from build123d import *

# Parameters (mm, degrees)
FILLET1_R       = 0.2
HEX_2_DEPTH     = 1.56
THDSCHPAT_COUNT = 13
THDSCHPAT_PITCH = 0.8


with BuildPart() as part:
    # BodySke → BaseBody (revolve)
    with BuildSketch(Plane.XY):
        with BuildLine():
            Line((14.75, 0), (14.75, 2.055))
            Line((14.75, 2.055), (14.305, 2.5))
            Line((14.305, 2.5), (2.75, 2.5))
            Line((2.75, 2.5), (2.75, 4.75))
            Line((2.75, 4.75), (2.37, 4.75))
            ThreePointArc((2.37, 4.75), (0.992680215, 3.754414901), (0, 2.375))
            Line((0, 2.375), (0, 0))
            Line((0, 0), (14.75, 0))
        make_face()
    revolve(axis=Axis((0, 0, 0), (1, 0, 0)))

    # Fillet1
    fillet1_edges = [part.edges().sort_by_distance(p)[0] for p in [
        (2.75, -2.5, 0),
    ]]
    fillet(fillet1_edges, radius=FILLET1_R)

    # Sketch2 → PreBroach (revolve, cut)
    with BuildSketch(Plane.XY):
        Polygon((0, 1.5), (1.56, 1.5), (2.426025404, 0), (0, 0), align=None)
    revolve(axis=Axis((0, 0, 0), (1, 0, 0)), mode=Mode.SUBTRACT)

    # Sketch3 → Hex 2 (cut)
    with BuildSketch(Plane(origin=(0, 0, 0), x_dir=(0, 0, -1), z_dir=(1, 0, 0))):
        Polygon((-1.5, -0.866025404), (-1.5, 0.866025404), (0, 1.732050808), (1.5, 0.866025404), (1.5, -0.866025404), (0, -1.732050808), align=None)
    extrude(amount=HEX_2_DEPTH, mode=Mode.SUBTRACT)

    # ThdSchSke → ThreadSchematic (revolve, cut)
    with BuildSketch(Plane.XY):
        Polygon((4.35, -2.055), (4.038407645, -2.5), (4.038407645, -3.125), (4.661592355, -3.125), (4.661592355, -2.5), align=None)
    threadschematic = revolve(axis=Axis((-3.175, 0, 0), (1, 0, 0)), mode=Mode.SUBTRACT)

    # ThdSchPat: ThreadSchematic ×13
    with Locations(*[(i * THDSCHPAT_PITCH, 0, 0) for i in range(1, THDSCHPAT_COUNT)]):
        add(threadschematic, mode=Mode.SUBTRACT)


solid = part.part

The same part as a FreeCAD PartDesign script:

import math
import FreeCAD as App
import Part
import Sketcher
from FreeCAD import Vector
Q = App.Units.Quantity


def edges_at(feature, points):
    """Names of the edges that pass closest to the given points."""
    edges = feature.Shape.Edges
    near = lambda p: min(range(len(edges)), key=lambda i: edges[i].distToShape(Part.Vertex(*p))[0])
    return sorted({f"Edge{near(p) + 1}" for p in points})

doc = App.newDocument("Part")
body = doc.addObject("PartDesign::Body", "Body")

sketch1 = body.newObject("Sketcher::SketchObject", "Sketch")
sketch1.AttachmentSupport = (doc.getObject("XY_Plane"), [""])
sketch1.MapMode = "FlatFace"
sketch1.addGeometry([
    Part.LineSegment(Vector(14.75, 0, 0), Vector(14.75, 2.055, 0)),
    Part.LineSegment(Vector(14.75, 2.055, 0), Vector(14.305, 2.5, 0)),
    Part.LineSegment(Vector(14.305, 2.5, 0), Vector(2.75, 2.5, 0)),
    Part.LineSegment(Vector(2.75, 2.5, 0), Vector(2.75, 4.75, 0)),
    Part.LineSegment(Vector(2.75, 4.75, 0), Vector(2.37, 4.75, 0)),
    Part.ArcOfCircle(Part.Circle(Vector(4.755016, 0, 0), Vector(0, 0, 1), 5.315148), math.radians(116.66162), math.radians(153.459129)),
    Part.LineSegment(Vector(0, 2.375, 0), Vector(0, 0, 0)),
    Part.LineSegment(Vector(0, 0, 0), Vector(14.75, 0, 0)),
], False)
sketch1.addConstraint([
    Sketcher.Constraint("Coincident", 0, 2, 1, 1),
    Sketcher.Constraint("Coincident", 1, 2, 2, 1),
    Sketcher.Constraint("Coincident", 2, 2, 3, 1),
    Sketcher.Constraint("Coincident", 3, 2, 4, 1),
    Sketcher.Constraint("Coincident", 4, 2, 5, 1),
    Sketcher.Constraint("Coincident", 5, 2, 6, 1),
    Sketcher.Constraint("Coincident", 6, 2, 7, 1),
    Sketcher.Constraint("Coincident", 7, 2, 0, 1),
    Sketcher.Constraint("Vertical", 0),
    Sketcher.Constraint("Horizontal", 2),
    Sketcher.Constraint("Vertical", 3),
    Sketcher.Constraint("Horizontal", 4),
    Sketcher.Constraint("Vertical", 6),
    Sketcher.Constraint("Horizontal", 7),
    Sketcher.Constraint("Coincident", 6, 2, -1, 1),
    Sketcher.Constraint("PointOnObject", 5, 3, -1),
    Sketcher.Constraint("Angle", 1, Q("135 deg")),
    Sketcher.Constraint("DistanceX", 2, 2, 0, 2, 12.0),
    Sketcher.Constraint("DistanceX", 4, 2, 4, 1, 0.38),
    Sketcher.Constraint("DistanceX", 7, 1, 7, 2, 14.75),
    Sketcher.Constraint("DistanceY", 3, 1, 3, 2, 2.25),
    Sketcher.Constraint("DistanceY", -1, 1, 1, 2, 2.5),
    Sketcher.Constraint("DistanceX", 2, 2, 2, 1, 11.555),
    Sketcher.Constraint("DistanceY", 6, 2, 6, 1, 2.375),
])
revolution = body.newObject("PartDesign::Revolution", "Revolution")
revolution.Profile = sketch1
revolution.ReferenceAxis = (sketch1, ["H_Axis"])
revolution.Angle = 360
doc.recompute()

fillet = body.newObject("PartDesign::Fillet", "Fillet")
fillet.Base = (revolution, edges_at(revolution, [(2.75, -2.5, 0)]))
fillet.Radius = 0.2

sketch2 = body.newObject("Sketcher::SketchObject", "Sketch001")
sketch2.AttachmentSupport = (doc.getObject("XY_Plane"), [""])
sketch2.MapMode = "FlatFace"
sketch2.addGeometry([
    Part.LineSegment(Vector(1.56, 1.5, 0), Vector(0, 1.5, 0)),
    Part.LineSegment(Vector(0, 1.5, 0), Vector(0, 0, 0)),
    Part.LineSegment(Vector(0, 0, 0), Vector(2.426025, 0, 0)),
    Part.LineSegment(Vector(2.426025, 0, 0), Vector(1.56, 1.5, 0)),
], False)
sketch2.addConstraint([
    Sketcher.Constraint("Coincident", 0, 2, 1, 1),
    Sketcher.Constraint("Coincident", 1, 2, 2, 1),
    Sketcher.Constraint("Coincident", 2, 2, 3, 1),
    Sketcher.Constraint("Coincident", 3, 2, 0, 1),
    Sketcher.Constraint("Horizontal", 0),
    Sketcher.Constraint("Vertical", 1),
    Sketcher.Constraint("Horizontal", 2),
    Sketcher.Constraint("Coincident", 1, 2, -1, 1),
    Sketcher.Constraint("Angle", 3, Q("120 deg")),
    Sketcher.Constraint("DistanceY", 1, 2, 1, 1, 1.5),
    Sketcher.Constraint("DistanceX", 0, 2, 0, 1, 1.56),
])
groove = body.newObject("PartDesign::Groove", "Groove")
groove.Profile = sketch2
groove.ReferenceAxis = (sketch2, ["H_Axis"])
groove.Angle = 360

sketch3 = body.newObject("Sketcher::SketchObject", "Sketch002")
sketch3.AttachmentSupport = (doc.getObject("YZ_Plane"), [""])
sketch3.MapMode = "FlatFace"
sketch3.addGeometry([
    Part.LineSegment(Vector(0.866025, 1.5, 0), Vector(-0.866025, 1.5, 0)),
    Part.LineSegment(Vector(-0.866025, 1.5, 0), Vector(-1.732051, 0, 0)),
    Part.LineSegment(Vector(-1.732051, 0, 0), Vector(-0.866025, -1.5, 0)),
    Part.LineSegment(Vector(-0.866025, -1.5, 0), Vector(0.866025, -1.5, 0)),
    Part.LineSegment(Vector(0.866025, -1.5, 0), Vector(1.732051, 0, 0)),
    Part.LineSegment(Vector(1.732051, 0, 0), Vector(0.866025, 1.5, 0)),
], False)
sketch3.addConstraint([
    Sketcher.Constraint("Coincident", 0, 2, 1, 1),
    Sketcher.Constraint("Coincident", 1, 2, 2, 1),
    Sketcher.Constraint("Coincident", 2, 2, 3, 1),
    Sketcher.Constraint("Coincident", 3, 2, 4, 1),
    Sketcher.Constraint("Coincident", 4, 2, 5, 1),
    Sketcher.Constraint("Coincident", 5, 2, 0, 1),
    Sketcher.Constraint("Horizontal", 0),
    Sketcher.Constraint("Horizontal", 3),
    Sketcher.Constraint("Symmetric", 0, 2, 3, 2, -1, 1),
    Sketcher.Constraint("Symmetric", 1, 2, 4, 2, -1, 1),
    Sketcher.Constraint("PointOnObject", 1, 2, -1),
    Sketcher.Constraint("Parallel", 2, 5),
    Sketcher.Constraint("Vertical", 0, 2, 2, 2),
    Sketcher.Constraint("Angle", 1, Q("-120 deg")),
    Sketcher.Constraint("DistanceY", 2, 2, 0, 2, 3.0),
    Sketcher.Constraint("DistanceX", 0, 2, 0, 1, 1.732051),
])
pocket1 = body.newObject("PartDesign::Pocket", "Pocket")
pocket1.Profile = sketch3
pocket1.Length = 1.56
pocket1.Reversed = True

sketch4 = body.newObject("Sketcher::SketchObject", "Sketch003")
sketch4.AttachmentSupport = (doc.getObject("XY_Plane"), [""])
sketch4.MapMode = "FlatFace"
sketch4.addGeometry([
    Part.LineSegment(Vector(4.35, -2.055, 0), Vector(4.038408, -2.5, 0)),
    Part.LineSegment(Vector(4.038408, -2.5, 0), Vector(4.038408, -3.125, 0)),
    Part.LineSegment(Vector(4.038408, -3.125, 0), Vector(4.661592, -3.125, 0)),
    Part.LineSegment(Vector(4.661592, -3.125, 0), Vector(4.661592, -2.5, 0)),
    Part.LineSegment(Vector(4.661592, -2.5, 0), Vector(4.35, -2.055, 0)),
], False)
sketch4.addConstraint([
    Sketcher.Constraint("Coincident", 0, 2, 1, 1),
    Sketcher.Constraint("Coincident", 1, 2, 2, 1),
    Sketcher.Constraint("Coincident", 2, 2, 3, 1),
    Sketcher.Constraint("Coincident", 3, 2, 4, 1),
    Sketcher.Constraint("Coincident", 4, 2, 0, 1),
    Sketcher.Constraint("Vertical", 1),
    Sketcher.Constraint("Horizontal", 2),
    Sketcher.Constraint("Vertical", 3),
    Sketcher.Constraint("Horizontal", 0, 2, 3, 2),
    Sketcher.Constraint("Equal", 0, 4),
    Sketcher.Constraint("Angle", 0, Q("-125 deg")),
    Sketcher.Constraint("DistanceY", 0, 2, -1, 1, 2.5),
    Sketcher.Constraint("DistanceY", 1, 2, 1, 1, 0.625),
    Sketcher.Constraint("DistanceX", -1, 1, 4, 2, 4.35),
    Sketcher.Constraint("DistanceY", 1, 2, 4, 2, 1.07),
])
groove2 = body.newObject("PartDesign::Groove", "Groove001")
groove2.Profile = sketch4
groove2.ReferenceAxis = (sketch4, ["H_Axis"])
groove2.Angle = 360
doc.recompute()

linearpattern = body.newObject("PartDesign::LinearPattern", "LinearPattern")
linearpattern.Originals = [groove2]
linearpattern.Direction = (doc.getObject("X_Axis"), [""])
linearpattern.Mode = "offset"
linearpattern.Offset = 0.8
linearpattern.Occurrences = 13
body.Tip = linearpattern

doc.recompute()
